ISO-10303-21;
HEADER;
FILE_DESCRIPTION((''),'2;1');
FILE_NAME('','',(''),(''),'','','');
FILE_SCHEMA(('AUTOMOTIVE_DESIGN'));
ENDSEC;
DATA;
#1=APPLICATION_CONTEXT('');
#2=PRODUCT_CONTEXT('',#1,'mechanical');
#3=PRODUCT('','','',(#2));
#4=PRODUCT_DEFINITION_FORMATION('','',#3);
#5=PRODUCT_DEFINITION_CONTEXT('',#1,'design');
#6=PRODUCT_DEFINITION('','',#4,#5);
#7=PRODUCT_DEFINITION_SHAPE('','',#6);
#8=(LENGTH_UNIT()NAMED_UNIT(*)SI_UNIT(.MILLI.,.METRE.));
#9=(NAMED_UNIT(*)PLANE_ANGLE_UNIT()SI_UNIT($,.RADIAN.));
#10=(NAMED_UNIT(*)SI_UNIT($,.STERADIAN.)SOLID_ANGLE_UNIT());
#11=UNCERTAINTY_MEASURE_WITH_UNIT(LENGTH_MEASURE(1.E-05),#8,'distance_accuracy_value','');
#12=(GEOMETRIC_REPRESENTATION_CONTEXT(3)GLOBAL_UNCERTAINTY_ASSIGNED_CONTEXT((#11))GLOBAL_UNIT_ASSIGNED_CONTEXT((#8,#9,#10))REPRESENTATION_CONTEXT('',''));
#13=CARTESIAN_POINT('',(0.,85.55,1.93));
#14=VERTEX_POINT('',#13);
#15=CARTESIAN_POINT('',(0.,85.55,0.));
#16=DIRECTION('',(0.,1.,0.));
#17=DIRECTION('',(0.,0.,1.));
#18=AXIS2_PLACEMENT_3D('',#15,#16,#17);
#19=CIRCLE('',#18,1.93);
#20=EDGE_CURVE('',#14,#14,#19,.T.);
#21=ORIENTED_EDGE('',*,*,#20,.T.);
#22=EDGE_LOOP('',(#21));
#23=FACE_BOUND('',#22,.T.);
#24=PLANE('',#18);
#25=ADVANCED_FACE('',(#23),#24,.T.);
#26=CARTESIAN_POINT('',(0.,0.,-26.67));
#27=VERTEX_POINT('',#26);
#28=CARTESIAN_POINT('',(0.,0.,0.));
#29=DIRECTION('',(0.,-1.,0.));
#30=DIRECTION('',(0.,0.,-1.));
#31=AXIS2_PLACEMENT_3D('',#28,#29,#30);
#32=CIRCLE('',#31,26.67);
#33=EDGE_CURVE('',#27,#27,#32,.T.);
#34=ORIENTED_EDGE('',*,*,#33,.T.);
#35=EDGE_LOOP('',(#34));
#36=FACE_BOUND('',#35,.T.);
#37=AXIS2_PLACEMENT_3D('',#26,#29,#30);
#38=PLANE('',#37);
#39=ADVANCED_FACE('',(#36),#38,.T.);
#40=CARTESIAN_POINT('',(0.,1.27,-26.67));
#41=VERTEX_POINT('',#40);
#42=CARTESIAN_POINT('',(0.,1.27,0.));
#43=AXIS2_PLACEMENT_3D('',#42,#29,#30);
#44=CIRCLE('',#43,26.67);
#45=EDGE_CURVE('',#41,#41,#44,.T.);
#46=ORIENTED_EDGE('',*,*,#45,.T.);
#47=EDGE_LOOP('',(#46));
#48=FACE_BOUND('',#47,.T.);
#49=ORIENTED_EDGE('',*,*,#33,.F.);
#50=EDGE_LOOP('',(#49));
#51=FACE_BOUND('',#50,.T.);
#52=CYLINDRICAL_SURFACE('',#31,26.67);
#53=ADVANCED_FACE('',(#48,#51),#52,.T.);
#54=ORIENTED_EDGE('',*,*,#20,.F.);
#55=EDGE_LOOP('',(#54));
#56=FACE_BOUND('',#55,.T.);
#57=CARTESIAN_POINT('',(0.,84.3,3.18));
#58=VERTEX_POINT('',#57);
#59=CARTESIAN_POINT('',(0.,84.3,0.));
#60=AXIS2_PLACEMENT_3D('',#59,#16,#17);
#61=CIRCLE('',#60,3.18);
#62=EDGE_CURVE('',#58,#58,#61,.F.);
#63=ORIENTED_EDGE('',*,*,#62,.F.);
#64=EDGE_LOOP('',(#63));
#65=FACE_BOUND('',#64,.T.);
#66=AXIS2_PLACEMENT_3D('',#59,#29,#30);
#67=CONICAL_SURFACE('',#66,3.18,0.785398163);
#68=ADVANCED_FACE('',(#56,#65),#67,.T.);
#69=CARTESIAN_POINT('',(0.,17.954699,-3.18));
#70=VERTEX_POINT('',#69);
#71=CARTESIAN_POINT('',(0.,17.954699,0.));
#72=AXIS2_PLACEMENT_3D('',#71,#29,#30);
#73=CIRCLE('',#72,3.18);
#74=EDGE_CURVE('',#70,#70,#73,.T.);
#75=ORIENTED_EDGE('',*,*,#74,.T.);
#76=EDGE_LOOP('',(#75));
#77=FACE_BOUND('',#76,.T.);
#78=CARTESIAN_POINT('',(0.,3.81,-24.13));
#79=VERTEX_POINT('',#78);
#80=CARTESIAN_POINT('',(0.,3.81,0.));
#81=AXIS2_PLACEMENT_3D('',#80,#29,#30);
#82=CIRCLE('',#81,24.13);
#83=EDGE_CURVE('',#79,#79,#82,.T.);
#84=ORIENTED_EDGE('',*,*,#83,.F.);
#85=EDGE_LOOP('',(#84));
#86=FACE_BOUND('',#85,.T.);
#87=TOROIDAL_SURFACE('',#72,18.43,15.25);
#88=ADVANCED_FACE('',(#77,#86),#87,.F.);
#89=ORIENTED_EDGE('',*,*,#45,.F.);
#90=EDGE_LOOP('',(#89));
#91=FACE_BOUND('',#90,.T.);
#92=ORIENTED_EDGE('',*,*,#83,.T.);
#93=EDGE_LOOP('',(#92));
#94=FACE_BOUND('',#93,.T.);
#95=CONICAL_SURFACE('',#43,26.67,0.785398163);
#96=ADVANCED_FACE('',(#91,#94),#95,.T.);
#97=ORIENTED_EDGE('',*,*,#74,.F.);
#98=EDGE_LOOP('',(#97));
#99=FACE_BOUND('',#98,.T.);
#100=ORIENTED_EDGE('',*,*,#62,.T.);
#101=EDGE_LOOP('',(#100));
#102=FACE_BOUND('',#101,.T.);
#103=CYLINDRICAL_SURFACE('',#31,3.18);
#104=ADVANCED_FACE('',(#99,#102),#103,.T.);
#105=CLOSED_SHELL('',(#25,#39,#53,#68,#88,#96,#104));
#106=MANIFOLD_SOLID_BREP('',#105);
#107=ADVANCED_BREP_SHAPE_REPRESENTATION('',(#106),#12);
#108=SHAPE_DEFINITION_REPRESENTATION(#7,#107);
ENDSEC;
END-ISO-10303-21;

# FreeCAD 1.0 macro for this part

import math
import FreeCAD as App
import Part
import Sketcher
from FreeCAD import Vector
Q = App.Units.Quantity


def edges_at(feature, points):
    """Names of the edges that pass closest to the given points."""
    edges = feature.Shape.Edges
    near = lambda p: min(range(len(edges)), key=lambda i: edges[i].distToShape(Part.Vertex(*p))[0])
    return sorted({f"Edge{near(p) + 1}" for p in points})

doc = App.newDocument("Part")
params = doc.addObject("Spreadsheet::Sheet", "Params")
for row, (alias, value) in enumerate([
    ("sketch1_width", "0.05 in"),
    ("sketch1_height", "1.05 in"),
    ("revolution_angle", "360 deg"),
    ("chamfer_size", "1.25 mm"),
], start=1):
    params.set(f"A{row}", alias)
    params.set(f"B{row}", "=" + value)
    params.setAlias(f"B{row}", alias)

body = doc.addObject("PartDesign::Body", "Body")

# Sketch on YZ plane
sketch1 = body.newObject("Sketcher::SketchObject", "Sketch")
sketch1.AttachmentSupport = (doc.getObject("YZ_Plane"), [""])
sketch1.MapMode = "FlatFace"
sketch1.addGeometry(Part.LineSegment(Vector(85.5, 0, 0), Vector(0, 0, 0)), False)
sketch1.addGeometry(Part.LineSegment(Vector(0, 0, 0), Vector(0, -26.7, 0)), False)
sketch1.addGeometry(Part.LineSegment(Vector(0, -26.7, 0), Vector(1.3, -26.7, 0)), False)
sketch1.addGeometry(Part.LineSegment(Vector(1.3, -26.7, 0), Vector(3.8, -24.1, 0)), False)
sketch1.addGeometry(Part.ArcOfCircle(Part.Circle(Vector(18, -18.4, 0), Vector(0, 0, 1), 15.2), math.radians(90), math.radians(202)), False)
sketch1.addGeometry(Part.LineSegment(Vector(18, -3.2, 0), Vector(85.5, -3.2, 0)), False)
sketch1.addGeometry(Part.LineSegment(Vector(85.5, -3.2, 0), Vector(85.5, 0, 0)), False)
sketch1.addConstraint(Sketcher.Constraint("Coincident", 0, 2, 1, 1))
sketch1.addConstraint(Sketcher.Constraint("Coincident", 1, 2, 2, 1))
sketch1.addConstraint(Sketcher.Constraint("Coincident", 2, 2, 3, 1))
sketch1.addConstraint(Sketcher.Constraint("Coincident", 3, 2, 4, 2))
sketch1.addConstraint(Sketcher.Constraint("Tangent", 4, 1, 5, 1))
sketch1.addConstraint(Sketcher.Constraint("Coincident", 5, 2, 6, 1))
sketch1.addConstraint(Sketcher.Constraint("Coincident", 6, 2, 0, 1))
sketch1.addConstraint(Sketcher.Constraint("Horizontal", 0))
sketch1.addConstraint(Sketcher.Constraint("Vertical", 1))
sketch1.addConstraint(Sketcher.Constraint("Horizontal", 2))
sketch1.addConstraint(Sketcher.Constraint("Horizontal", 5))
sketch1.addConstraint(Sketcher.Constraint("Vertical", 6))
sketch1.addConstraint(Sketcher.Constraint("Coincident", 0, 2, -1, 1))
sketch1.addConstraint(Sketcher.Constraint("Angle", 3, Q("45 deg")))
sketch1.addConstraint(Sketcher.Constraint("DistanceX", 2, 1, 2, 2, Q("0.05 in")))
sketch1.addConstraint(Sketcher.Constraint("DistanceY", 1, 2, 1, 1, Q("1.05 in")))
sketch1.addConstraint(Sketcher.Constraint("DistanceX", 2, 2, 3, 2, Q("0.1 in")))
sketch1.addConstraint(Sketcher.Constraint("Radius", 4, Q("15.25 mm")))
sketch1.addConstraint(Sketcher.Constraint("DistanceX", 0, 2, 0, 1, Q("85.55 mm")))
sketch1.addConstraint(Sketcher.Constraint("DistanceX", 5, 1, 5, 2, Q("67.595301 mm")))
sketch1.setExpression("Constraints[14]", "Params.sketch1_width")
sketch1.setExpression("Constraints[15]", "Params.sketch1_height")
revolution = body.newObject("PartDesign::Revolution", "Revolution")
revolution.Profile = sketch1
revolution.ReferenceAxis = (sketch1, ["H_Axis"])
revolution.setExpression("Angle", "Params.revolution_angle")
doc.recompute()

chamfer = body.newObject("PartDesign::Chamfer", "Chamfer")
chamfer.Base = (revolution, edges_at(revolution, [(0, 85.55, 3.18)]))
chamfer.setExpression("Size", "Params.chamfer_size")

doc.recompute()
